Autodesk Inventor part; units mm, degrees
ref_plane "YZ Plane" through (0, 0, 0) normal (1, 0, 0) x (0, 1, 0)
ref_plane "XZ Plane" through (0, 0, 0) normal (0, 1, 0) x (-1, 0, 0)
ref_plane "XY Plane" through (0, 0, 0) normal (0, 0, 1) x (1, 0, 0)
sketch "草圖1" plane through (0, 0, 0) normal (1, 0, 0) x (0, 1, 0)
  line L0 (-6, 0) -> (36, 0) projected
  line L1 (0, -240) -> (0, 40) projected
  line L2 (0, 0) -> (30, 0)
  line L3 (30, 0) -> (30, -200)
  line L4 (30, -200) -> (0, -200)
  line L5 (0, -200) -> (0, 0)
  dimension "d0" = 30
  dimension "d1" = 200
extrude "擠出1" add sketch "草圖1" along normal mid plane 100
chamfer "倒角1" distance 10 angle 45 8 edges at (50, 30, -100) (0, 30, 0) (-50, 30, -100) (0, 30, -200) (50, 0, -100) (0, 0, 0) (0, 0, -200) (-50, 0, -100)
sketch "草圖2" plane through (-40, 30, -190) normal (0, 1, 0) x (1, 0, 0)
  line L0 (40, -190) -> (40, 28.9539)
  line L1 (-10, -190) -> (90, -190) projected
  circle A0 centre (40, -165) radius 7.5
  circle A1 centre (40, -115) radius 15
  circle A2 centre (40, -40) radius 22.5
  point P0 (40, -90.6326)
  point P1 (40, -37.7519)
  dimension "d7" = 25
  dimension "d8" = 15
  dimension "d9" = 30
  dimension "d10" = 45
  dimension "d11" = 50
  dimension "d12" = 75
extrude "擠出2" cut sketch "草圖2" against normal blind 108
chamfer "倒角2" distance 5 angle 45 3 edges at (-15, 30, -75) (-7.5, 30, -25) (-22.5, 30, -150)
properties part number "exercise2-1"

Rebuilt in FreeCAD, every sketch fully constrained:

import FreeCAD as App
import Part
import Sketcher

V = App.Vector


def edges_at(feature, points):
    """Names of the edges that pass closest to the given points."""
    edges = feature.Shape.Edges
    near = lambda p: min(range(len(edges)), key=lambda i: edges[i].distToShape(Part.Vertex(*p))[0])
    return sorted({f"Edge{near(p) + 1}" for p in points})


def add_polygon(sketch, points):
    """Adds a closed chain of lines whose ends are joined by coincident constraints."""
    first, n = sketch.GeometryCount, len(points)
    for a, b in zip(points, points[1:] + points[:1]):
        sketch.addGeometry(Part.LineSegment(App.Vector(*a, 0), App.Vector(*b, 0)), False)
    for i in range(n):
        sketch.addConstraint(Sketcher.Constraint("Coincident", first + i, 2, first + (i + 1) % n, 1))

doc = App.newDocument("Part")
body = doc.addObject("PartDesign::Body", "Body")

# Sketch on YZ plane
sketch1 = body.newObject("Sketcher::SketchObject", "Sketch")
sketch1.AttachmentSupport = (doc.getObject("YZ_Plane"), [""])
sketch1.MapMode = "FlatFace"
add_polygon(sketch1, [(30, 0), (0, 0), (0, -200), (30, -200)])  # lines 0-3
sketch1.addConstraint(Sketcher.Constraint("Horizontal", 0))
sketch1.addConstraint(Sketcher.Constraint("Vertical", 1))
sketch1.addConstraint(Sketcher.Constraint("Horizontal", 2))
sketch1.addConstraint(Sketcher.Constraint("Vertical", 3))
sketch1.addConstraint(Sketcher.Constraint("Coincident", 0, 2, -1, 1))
sketch1.addConstraint(Sketcher.Constraint("DistanceX", 0, 2, 0, 1, 30.0))
sketch1.addConstraint(Sketcher.Constraint("DistanceY", 1, 2, 1, 1, 200.0))
pad1 = body.newObject("PartDesign::Pad", "Pad")
pad1.Profile = sketch1
pad1.Length = 100
pad1.Midplane = True
doc.recompute()

chamfer = body.newObject("PartDesign::Chamfer", "Chamfer")
chamfer.Base = (pad1, edges_at(pad1, [
    (50, 30, -100),
    (0, 30, 0),
    (-50, 30, -100),
    (0, 30, -200),
    (50, 0, -100),
    (0, 0, 0),
    (0, 0, -200),
    (-50, 0, -100),
]))
chamfer.Size = 10

# Sketch on XZ plane
sketch2 = body.newObject("Sketcher::SketchObject", "Sketch001")
sketch2.AttachmentSupport = (doc.getObject("XZ_Plane"), [""])
sketch2.MapMode = "FlatFace"
sketch2.AttachmentOffset = App.Placement(V(0, 0, -30), App.Rotation())
sketch2.addGeometry(Part.Circle(V(0, -25, 0), V(0, 0, 1), 7.5), False)
sketch2.addGeometry(Part.Circle(V(0, -150, 0), V(0, 0, 1), 22.5), False)
sketch2.addGeometry(Part.Circle(V(0, -75, 0), V(0, 0, 1), 15), False)
sketch2.addConstraint(Sketcher.Constraint("PointOnObject", 0, 3, -2))
sketch2.addConstraint(Sketcher.Constraint("PointOnObject", 1, 3, -2))
sketch2.addConstraint(Sketcher.Constraint("PointOnObject", 2, 3, -2))
sketch2.addConstraint(Sketcher.Constraint("Diameter", 0, 15.0))
sketch2.addConstraint(Sketcher.Constraint("Diameter", 1, 45.0))
sketch2.addConstraint(Sketcher.Constraint("Diameter", 2, 30.0))
sketch2.addConstraint(Sketcher.Constraint("DistanceY", 0, 3, -1, 1, 25.0))
sketch2.addConstraint(Sketcher.Constraint("DistanceY", 2, 3, -1, 1, 75.0))
sketch2.addConstraint(Sketcher.Constraint("DistanceY", 1, 3, 2, 3, 75.0))
pocket1 = body.newObject("PartDesign::Pocket", "Pocket")
pocket1.Profile = sketch2
pocket1.Length = 108
pocket1.Reversed = True
doc.recompute()

chamfer2 = body.newObject("PartDesign::Chamfer", "Chamfer001")
chamfer2.Base = (pocket1, edges_at(pocket1, [(-15, 30, -75), (-7.5, 30, -25), (-22.5, 30, -150)]))
chamfer2.Size = 5

doc.recompute()
